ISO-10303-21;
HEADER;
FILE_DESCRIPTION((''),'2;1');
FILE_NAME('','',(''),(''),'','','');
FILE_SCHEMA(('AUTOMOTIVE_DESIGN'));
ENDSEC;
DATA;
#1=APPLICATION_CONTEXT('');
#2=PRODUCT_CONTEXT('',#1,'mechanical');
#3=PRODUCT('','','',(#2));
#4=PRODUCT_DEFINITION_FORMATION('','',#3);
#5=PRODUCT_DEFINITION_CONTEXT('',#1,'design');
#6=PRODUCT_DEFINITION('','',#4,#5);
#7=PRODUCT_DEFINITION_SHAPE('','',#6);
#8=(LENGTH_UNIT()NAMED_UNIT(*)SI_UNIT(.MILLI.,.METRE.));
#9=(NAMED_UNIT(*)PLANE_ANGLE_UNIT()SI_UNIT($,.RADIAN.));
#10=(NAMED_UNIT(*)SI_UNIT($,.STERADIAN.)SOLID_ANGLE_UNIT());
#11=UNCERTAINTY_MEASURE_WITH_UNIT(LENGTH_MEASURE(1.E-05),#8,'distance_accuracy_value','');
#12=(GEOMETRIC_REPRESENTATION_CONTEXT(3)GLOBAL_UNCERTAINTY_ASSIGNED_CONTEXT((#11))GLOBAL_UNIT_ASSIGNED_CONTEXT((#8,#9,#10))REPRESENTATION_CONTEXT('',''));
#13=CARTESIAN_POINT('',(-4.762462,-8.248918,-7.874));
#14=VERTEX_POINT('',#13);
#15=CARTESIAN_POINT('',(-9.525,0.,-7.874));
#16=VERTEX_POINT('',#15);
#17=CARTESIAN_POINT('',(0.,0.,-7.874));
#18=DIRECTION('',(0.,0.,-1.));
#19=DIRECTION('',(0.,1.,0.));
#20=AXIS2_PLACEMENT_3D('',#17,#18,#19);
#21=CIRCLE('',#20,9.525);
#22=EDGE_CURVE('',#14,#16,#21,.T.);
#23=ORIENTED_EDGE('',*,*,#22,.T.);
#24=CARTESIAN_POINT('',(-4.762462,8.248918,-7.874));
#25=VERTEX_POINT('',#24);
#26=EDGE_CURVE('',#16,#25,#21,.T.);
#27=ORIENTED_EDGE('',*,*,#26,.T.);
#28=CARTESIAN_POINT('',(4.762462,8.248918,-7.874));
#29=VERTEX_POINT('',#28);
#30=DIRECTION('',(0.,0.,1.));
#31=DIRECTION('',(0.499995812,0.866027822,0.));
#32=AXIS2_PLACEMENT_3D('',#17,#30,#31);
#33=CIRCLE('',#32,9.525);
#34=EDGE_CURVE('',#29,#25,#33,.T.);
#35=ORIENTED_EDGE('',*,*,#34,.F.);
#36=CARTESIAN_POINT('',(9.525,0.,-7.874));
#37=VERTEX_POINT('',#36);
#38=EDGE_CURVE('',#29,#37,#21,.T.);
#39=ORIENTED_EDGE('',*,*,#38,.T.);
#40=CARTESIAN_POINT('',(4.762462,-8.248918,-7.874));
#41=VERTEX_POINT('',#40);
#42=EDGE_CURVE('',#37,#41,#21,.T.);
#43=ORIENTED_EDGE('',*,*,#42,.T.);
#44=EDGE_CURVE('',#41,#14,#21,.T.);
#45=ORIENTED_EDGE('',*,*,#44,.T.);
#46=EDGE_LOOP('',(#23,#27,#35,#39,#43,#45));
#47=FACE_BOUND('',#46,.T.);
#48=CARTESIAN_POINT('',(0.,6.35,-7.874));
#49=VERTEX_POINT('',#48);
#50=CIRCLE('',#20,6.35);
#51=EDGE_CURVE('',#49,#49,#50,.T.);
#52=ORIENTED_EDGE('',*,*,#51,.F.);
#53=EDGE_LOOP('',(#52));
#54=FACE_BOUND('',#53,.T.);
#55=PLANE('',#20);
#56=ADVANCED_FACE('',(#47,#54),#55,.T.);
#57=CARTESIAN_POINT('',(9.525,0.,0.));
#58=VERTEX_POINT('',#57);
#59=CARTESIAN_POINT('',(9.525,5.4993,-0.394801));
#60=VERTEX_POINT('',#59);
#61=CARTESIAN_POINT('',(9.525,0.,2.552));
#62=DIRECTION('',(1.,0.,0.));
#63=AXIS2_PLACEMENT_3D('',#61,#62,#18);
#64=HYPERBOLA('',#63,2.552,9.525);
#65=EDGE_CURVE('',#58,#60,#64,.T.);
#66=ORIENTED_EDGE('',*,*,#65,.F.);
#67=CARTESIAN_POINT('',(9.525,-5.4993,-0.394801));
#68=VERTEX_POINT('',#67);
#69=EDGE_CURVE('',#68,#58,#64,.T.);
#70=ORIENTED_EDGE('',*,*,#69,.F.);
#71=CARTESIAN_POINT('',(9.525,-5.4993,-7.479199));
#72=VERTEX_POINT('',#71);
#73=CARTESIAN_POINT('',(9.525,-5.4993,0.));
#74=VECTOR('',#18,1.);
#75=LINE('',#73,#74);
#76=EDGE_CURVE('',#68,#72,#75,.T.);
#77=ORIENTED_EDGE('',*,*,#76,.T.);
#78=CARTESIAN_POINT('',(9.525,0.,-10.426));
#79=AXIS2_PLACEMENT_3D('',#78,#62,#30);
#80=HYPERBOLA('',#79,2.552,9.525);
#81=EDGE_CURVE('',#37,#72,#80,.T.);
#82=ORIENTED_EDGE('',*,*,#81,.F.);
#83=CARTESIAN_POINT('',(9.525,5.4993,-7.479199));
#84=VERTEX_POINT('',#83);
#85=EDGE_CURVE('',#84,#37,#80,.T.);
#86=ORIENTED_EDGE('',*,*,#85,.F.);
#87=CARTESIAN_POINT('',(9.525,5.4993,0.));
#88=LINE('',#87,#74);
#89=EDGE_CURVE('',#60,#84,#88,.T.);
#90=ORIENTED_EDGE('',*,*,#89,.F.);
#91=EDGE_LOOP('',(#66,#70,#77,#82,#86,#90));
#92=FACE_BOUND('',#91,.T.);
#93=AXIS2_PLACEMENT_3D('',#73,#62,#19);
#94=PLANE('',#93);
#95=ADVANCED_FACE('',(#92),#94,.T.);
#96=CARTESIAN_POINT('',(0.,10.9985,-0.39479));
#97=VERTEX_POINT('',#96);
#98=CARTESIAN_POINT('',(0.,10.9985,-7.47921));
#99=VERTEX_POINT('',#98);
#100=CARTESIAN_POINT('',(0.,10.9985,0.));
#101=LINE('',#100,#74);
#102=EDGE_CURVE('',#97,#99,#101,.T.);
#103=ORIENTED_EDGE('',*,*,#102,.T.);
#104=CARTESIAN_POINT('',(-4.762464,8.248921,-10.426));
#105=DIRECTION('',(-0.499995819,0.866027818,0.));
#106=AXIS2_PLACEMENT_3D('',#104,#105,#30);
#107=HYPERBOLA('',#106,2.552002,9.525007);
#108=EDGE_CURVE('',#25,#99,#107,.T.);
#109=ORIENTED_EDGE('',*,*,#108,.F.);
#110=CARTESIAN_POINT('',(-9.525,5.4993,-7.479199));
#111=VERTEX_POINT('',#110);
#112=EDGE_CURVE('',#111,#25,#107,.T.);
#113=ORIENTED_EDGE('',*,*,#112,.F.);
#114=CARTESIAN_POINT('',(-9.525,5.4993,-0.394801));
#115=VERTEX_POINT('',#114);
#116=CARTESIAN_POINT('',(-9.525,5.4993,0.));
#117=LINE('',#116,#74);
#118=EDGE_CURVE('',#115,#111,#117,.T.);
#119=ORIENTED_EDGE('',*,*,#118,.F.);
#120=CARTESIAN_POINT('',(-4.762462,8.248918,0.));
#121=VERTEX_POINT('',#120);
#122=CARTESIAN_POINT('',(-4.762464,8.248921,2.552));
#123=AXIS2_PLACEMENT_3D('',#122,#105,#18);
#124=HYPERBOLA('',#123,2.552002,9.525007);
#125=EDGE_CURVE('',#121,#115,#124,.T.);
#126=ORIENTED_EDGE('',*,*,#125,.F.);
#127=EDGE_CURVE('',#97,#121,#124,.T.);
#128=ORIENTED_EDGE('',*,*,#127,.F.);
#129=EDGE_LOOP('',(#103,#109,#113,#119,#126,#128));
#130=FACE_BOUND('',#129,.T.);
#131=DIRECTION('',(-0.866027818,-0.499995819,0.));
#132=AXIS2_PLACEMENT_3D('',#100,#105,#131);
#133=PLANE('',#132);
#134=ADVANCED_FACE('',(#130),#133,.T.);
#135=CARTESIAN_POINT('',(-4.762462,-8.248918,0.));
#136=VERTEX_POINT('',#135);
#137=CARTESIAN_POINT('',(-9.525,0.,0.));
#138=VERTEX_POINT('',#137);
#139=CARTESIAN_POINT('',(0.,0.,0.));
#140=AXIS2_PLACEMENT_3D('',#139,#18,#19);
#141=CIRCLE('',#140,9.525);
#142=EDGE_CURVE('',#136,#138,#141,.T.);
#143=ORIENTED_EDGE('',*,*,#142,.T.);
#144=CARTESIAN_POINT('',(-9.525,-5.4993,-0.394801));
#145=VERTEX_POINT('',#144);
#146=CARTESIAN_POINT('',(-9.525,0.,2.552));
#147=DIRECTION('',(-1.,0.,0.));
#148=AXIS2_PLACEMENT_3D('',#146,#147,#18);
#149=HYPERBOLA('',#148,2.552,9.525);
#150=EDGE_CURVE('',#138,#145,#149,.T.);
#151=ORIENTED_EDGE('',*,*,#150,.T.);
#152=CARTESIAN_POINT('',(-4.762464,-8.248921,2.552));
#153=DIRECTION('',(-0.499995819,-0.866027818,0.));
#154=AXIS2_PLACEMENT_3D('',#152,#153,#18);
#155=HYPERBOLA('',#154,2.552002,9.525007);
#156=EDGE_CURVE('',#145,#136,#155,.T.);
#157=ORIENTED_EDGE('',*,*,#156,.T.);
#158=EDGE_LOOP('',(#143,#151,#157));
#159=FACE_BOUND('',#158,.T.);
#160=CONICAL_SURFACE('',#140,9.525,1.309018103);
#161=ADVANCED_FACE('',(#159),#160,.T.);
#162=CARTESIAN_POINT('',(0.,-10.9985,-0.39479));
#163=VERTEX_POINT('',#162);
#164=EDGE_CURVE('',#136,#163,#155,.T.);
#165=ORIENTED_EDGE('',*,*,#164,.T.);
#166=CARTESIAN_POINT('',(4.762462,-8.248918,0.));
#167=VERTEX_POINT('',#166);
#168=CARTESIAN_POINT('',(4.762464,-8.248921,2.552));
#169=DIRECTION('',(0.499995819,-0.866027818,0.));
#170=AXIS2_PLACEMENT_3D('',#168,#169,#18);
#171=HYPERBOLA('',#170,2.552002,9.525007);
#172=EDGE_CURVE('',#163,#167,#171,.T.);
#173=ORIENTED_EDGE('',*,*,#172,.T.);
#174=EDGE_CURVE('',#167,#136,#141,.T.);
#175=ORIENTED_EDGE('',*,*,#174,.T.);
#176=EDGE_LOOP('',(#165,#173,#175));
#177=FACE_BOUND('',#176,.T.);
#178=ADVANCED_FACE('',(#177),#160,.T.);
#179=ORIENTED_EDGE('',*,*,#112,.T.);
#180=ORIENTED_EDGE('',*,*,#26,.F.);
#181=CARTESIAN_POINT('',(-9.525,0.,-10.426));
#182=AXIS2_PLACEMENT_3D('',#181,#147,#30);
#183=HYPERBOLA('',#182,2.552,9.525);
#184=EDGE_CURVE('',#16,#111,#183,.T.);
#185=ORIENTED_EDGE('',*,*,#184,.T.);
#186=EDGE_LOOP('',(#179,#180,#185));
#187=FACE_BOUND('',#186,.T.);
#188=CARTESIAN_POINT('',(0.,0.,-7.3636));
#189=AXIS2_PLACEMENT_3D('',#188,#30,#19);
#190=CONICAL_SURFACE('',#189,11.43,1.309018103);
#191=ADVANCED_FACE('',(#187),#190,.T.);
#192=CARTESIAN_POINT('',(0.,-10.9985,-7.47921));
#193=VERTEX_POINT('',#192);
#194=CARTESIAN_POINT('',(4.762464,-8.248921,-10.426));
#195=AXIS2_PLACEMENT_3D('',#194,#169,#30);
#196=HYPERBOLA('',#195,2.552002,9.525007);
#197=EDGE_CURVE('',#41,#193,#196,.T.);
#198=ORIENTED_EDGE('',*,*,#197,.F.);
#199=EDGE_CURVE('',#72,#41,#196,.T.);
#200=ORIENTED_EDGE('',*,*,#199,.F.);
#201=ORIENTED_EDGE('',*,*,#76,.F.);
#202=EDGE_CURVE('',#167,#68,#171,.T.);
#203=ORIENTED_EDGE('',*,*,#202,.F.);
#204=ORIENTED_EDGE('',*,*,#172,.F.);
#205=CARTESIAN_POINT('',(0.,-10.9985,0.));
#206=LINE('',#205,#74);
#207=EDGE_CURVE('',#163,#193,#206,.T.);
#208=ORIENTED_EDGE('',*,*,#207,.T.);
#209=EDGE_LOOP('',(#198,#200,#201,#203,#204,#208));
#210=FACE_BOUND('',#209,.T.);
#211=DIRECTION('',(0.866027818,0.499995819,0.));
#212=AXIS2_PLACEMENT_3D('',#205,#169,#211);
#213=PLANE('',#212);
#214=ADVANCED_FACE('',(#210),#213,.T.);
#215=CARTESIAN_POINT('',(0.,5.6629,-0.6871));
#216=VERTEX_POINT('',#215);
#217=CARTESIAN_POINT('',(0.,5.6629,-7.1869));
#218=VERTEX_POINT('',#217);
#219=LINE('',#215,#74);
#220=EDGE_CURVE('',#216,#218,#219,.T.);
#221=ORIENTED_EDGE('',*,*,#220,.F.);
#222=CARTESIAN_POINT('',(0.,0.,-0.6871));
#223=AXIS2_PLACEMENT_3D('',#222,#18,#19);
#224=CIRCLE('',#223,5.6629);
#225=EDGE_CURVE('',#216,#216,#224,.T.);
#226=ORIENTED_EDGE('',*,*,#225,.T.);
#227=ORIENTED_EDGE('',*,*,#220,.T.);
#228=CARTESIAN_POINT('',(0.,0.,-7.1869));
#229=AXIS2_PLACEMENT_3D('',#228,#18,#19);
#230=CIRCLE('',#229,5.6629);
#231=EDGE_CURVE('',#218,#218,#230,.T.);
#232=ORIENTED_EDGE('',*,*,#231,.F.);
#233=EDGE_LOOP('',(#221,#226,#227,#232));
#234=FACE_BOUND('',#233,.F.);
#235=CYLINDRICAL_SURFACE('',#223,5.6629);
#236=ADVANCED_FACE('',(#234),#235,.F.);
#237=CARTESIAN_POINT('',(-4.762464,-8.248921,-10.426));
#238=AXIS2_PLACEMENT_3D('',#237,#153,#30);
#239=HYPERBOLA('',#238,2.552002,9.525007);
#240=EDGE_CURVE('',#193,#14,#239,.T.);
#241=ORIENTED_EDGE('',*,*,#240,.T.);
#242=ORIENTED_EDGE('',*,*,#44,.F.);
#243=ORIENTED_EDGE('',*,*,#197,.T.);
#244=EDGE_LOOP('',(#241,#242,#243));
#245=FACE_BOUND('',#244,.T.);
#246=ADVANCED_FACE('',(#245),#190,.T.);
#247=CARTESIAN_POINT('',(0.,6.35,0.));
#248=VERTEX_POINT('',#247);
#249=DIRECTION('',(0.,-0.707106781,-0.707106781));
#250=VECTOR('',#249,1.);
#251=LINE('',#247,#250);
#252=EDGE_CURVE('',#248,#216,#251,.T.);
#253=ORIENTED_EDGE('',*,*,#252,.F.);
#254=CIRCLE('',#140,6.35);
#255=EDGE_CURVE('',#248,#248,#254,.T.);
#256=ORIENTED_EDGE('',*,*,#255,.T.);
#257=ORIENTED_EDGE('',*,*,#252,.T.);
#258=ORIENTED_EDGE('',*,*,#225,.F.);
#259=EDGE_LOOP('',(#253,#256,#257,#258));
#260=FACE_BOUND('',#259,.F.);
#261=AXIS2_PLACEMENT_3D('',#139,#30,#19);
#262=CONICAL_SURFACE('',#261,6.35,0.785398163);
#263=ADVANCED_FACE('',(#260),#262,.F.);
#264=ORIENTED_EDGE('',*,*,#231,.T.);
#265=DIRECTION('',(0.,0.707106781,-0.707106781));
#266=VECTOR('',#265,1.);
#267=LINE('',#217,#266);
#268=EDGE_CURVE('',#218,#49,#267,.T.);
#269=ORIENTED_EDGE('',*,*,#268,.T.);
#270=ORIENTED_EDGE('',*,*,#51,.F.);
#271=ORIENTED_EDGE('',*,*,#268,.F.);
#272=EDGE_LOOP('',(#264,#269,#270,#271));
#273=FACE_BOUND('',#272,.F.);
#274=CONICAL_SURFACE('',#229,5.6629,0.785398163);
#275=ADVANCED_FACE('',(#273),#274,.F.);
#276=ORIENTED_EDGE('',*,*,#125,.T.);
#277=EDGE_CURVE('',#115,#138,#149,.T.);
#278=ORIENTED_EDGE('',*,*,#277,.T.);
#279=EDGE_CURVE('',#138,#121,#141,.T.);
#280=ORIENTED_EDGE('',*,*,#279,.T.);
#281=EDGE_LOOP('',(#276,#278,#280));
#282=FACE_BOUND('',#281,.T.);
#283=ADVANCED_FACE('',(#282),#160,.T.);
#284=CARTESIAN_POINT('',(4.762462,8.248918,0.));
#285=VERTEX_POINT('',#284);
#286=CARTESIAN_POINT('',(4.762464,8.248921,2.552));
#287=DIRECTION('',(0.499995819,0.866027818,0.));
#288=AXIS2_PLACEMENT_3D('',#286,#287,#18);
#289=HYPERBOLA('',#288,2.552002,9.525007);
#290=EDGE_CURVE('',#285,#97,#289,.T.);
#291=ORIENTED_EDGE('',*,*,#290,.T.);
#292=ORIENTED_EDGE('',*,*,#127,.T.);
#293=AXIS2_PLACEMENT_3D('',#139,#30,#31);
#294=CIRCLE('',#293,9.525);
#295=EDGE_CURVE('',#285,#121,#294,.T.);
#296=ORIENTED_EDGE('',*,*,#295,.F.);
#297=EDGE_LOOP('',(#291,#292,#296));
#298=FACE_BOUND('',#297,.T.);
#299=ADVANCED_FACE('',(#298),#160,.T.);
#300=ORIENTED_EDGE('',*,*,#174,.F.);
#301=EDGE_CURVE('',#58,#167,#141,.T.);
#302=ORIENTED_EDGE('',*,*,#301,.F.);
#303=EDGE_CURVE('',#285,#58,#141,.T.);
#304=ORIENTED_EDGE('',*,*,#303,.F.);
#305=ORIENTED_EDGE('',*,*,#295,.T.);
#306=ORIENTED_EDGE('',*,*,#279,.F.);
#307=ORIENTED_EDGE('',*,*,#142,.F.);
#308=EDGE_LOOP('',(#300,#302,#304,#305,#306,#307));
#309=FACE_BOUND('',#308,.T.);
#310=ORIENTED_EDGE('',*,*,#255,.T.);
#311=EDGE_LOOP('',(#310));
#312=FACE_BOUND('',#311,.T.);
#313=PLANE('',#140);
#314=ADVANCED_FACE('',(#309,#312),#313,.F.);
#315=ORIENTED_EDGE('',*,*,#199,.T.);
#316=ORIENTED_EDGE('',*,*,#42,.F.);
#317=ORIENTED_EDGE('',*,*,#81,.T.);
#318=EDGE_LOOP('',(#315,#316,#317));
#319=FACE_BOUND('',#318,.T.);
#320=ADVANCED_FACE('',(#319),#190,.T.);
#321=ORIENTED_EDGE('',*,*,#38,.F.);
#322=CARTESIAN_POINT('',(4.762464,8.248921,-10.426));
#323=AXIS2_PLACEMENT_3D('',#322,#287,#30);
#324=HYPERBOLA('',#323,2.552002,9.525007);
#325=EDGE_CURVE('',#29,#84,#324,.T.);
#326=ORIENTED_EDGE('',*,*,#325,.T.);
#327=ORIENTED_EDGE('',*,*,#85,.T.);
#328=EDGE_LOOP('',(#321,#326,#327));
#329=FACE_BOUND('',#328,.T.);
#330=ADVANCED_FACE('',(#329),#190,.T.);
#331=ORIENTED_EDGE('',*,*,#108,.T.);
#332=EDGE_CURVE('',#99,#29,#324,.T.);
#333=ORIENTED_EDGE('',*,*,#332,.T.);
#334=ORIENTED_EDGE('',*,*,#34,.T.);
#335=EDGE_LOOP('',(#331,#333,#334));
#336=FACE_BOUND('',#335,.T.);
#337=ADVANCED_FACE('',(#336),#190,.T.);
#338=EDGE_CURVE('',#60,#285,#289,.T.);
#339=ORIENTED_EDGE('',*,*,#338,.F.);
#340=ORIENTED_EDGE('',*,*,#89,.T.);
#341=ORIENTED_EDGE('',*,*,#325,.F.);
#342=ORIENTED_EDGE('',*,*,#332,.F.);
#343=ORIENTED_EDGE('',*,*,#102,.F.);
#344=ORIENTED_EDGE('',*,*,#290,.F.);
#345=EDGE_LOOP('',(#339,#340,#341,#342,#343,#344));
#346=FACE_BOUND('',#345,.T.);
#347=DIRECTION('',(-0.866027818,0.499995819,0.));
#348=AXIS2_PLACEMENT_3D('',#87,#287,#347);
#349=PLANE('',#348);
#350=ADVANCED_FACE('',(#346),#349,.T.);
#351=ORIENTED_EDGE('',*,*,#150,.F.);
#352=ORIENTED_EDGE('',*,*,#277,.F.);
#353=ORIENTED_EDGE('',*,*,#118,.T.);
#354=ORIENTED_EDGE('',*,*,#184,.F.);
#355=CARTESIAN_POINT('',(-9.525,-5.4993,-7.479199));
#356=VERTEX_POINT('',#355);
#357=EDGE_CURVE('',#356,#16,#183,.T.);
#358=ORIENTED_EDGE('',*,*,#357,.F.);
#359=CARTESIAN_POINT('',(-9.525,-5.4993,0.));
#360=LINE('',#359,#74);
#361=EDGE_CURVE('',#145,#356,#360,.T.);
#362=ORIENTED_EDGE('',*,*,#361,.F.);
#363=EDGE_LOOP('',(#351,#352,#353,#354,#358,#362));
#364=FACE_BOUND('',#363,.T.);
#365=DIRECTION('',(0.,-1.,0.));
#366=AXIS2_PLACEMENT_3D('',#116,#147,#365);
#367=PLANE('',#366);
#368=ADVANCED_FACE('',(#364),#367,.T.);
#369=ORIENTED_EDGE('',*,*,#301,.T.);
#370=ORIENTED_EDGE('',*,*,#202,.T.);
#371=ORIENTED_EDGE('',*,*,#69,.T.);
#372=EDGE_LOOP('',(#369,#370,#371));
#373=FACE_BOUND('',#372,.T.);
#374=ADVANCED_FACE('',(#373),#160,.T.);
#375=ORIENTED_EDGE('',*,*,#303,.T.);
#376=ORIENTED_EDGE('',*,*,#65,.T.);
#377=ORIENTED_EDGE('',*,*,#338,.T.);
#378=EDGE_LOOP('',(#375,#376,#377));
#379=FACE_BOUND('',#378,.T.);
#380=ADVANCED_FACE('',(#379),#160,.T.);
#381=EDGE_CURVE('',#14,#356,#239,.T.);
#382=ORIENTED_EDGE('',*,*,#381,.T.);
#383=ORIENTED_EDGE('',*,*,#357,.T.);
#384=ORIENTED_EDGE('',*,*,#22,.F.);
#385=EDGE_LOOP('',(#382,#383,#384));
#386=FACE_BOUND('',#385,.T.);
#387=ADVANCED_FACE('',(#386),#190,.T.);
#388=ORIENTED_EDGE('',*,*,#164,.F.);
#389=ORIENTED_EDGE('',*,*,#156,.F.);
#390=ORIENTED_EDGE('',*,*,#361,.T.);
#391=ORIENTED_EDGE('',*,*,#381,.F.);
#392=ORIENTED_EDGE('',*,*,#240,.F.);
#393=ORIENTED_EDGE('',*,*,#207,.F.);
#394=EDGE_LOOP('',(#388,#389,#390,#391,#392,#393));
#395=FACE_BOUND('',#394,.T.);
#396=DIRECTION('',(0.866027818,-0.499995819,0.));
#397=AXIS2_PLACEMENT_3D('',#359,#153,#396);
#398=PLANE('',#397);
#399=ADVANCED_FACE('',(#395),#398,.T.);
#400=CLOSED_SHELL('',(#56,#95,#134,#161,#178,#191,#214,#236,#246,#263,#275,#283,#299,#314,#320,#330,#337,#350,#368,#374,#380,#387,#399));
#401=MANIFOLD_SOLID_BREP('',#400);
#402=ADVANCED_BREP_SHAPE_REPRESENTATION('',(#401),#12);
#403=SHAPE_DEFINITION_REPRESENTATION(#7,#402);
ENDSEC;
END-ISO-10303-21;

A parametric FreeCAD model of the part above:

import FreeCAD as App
import Part
import Sketcher

V = App.Vector
Q = App.Units.Quantity

doc = App.newDocument("Part")
body = doc.addObject("PartDesign::Body", "Body")

# Sketch on YZ plane
sketch1 = body.newObject("Sketcher::SketchObject", "Sketch")
sketch1.AttachmentSupport = (doc.getObject("YZ_Plane"), [""])
sketch1.MapMode = "FlatFace"
sketch1.addGeometry([
    Part.LineSegment(V(0, 0, 0), V(0, -7.874, 0)),  # 0
    Part.LineSegment(V(0, -7.874, 0), V(9.525, -7.874, 0)),  # 1
    Part.LineSegment(V(9.525, -7.874, 0), V(11.43, -7.3636, 0)),  # 2
    Part.LineSegment(V(11.43, -7.3636, 0), V(11.43, -0.5104, 0)),  # 3
    Part.LineSegment(V(11.43, -0.5104, 0), V(9.525, 0, 0)),  # 4
    Part.LineSegment(V(9.525, 0, 0), V(0, 0, 0)),  # 5
], False)
sketch1.addConstraint([
    Sketcher.Constraint("Coincident", 0, 2, 1, 1),
    Sketcher.Constraint("Coincident", 1, 2, 2, 1),
    Sketcher.Constraint("Coincident", 2, 2, 3, 1),
    Sketcher.Constraint("Coincident", 3, 2, 4, 1),
    Sketcher.Constraint("Coincident", 4, 2, 5, 1),
    Sketcher.Constraint("Coincident", 5, 2, 0, 1),
    Sketcher.Constraint("Vertical", 0),
    Sketcher.Constraint("Horizontal", 1),
    Sketcher.Constraint("Vertical", 3),
    Sketcher.Constraint("Horizontal", 5),
    Sketcher.Constraint("Coincident", 5, 2, -1, 1),
    Sketcher.Constraint("Vertical", 1, 2, 4, 2),
    Sketcher.Constraint("Equal", 2, 4),
    Sketcher.Constraint("DistanceY", 0, 2, 0, 1, Q("0.31 in")),
    Sketcher.Constraint("DistanceX", 1, 1, 1, 2, Q("0.375 in")),
    Sketcher.Constraint("DistanceX", -1, 1, 2, 2, Q("0.45 in")),
    Sketcher.Constraint("DistanceY", 3, 1, 3, 2, Q("0.2698 in")),
])
revolution = body.newObject("PartDesign::Revolution", "Revolution")
revolution.Profile = sketch1
revolution.ReferenceAxis = (sketch1, ["V_Axis"])
revolution.Angle = 360

# Sketch on XY plane
sketch2 = body.newObject("Sketcher::SketchObject", "Sketch001")
sketch2.AttachmentSupport = (doc.getObject("XY_Plane"), [""])
sketch2.MapMode = "FlatFace"
sketch2.addGeometry([
    Part.LineSegment(V(19.05, 19.05, 0), V(-19.05, 19.05, 0)),  # 0
    Part.LineSegment(V(-19.05, 19.05, 0), V(-19.05, -19.05, 0)),  # 1
    Part.LineSegment(V(-19.05, -19.05, 0), V(19.05, -19.05, 0)),  # 2
    Part.LineSegment(V(19.05, -19.05, 0), V(19.05, 19.05, 0)),  # 3
    Part.LineSegment(V(-9.525, -5.4993, 0), V(-9.525, 5.4993, 0)),  # 4
    Part.LineSegment(V(-9.525, 5.4993, 0), V(0, 10.9985, 0)),  # 5
    Part.LineSegment(V(0, 10.9985, 0), V(9.525, 5.4993, 0)),  # 6
    Part.LineSegment(V(9.525, 5.4993, 0), V(9.525, -5.4993, 0)),  # 7
    Part.LineSegment(V(9.525, -5.4993, 0), V(0, -10.9985, 0)),  # 8
    Part.LineSegment(V(0, -10.9985, 0), V(-9.525, -5.4993, 0)),  # 9
], False)
sketch2.addConstraint([
    Sketcher.Constraint("Coincident", 0, 2, 1, 1),
    Sketcher.Constraint("Coincident", 1, 2, 2, 1),
    Sketcher.Constraint("Coincident", 2, 2, 3, 1),
    Sketcher.Constraint("Coincident", 3, 2, 0, 1),
    Sketcher.Constraint("Coincident", 4, 2, 5, 1),
    Sketcher.Constraint("Coincident", 5, 2, 6, 1),
    Sketcher.Constraint("Coincident", 6, 2, 7, 1),
    Sketcher.Constraint("Coincident", 7, 2, 8, 1),
    Sketcher.Constraint("Coincident", 8, 2, 9, 1),
    Sketcher.Constraint("Coincident", 9, 2, 4, 1),
    Sketcher.Constraint("Horizontal", 0),
    Sketcher.Constraint("Vertical", 1),
    Sketcher.Constraint("Horizontal", 2),
    Sketcher.Constraint("Vertical", 3),
    Sketcher.Constraint("Vertical", 4),
    Sketcher.Constraint("Vertical", 7),
    Sketcher.Constraint("Symmetric", 0, 2, 2, 2, -1, 1),
    Sketcher.Constraint("Symmetric", 4, 2, 7, 2, -1, 1),
    Sketcher.Constraint("Symmetric", 5, 2, 8, 2, -1, 1),
    Sketcher.Constraint("PointOnObject", 5, 2, -2),
    Sketcher.Constraint("Parallel", 6, 9),
    Sketcher.Constraint("Horizontal", 4, 2, 6, 2),
    Sketcher.Constraint("Equal", 2, 1),
    Sketcher.Constraint("DistanceX", 0, 2, 0, 1, Q("1.5 in")),
    Sketcher.Constraint("Angle", 5, Q("29.9997 deg")),
    Sketcher.Constraint("DistanceX", 4, 2, 6, 2, Q("0.75 in")),
    Sketcher.Constraint("DistanceY", -1, 1, 5, 2, Q("0.433 in")),
])
pocket1 = body.newObject("PartDesign::Pocket", "Pocket")
pocket1.Profile = sketch2
pocket1.Length = Q("0.31 in")

# Sketch on YZ plane
sketch3 = body.newObject("Sketcher::SketchObject", "Sketch002")
sketch3.AttachmentSupport = (doc.getObject("YZ_Plane"), [""])
sketch3.MapMode = "FlatFace"
sketch3.addGeometry([
    Part.LineSegment(V(0, 0, 0), V(0, -7.874, 0)),  # 0
    Part.LineSegment(V(0, -7.874, 0), V(6.35, -7.874, 0)),  # 1
    Part.LineSegment(V(6.35, -7.874, 0), V(5.6629, -7.1869, 0)),  # 2
    Part.LineSegment(V(5.6629, -7.1869, 0), V(5.6629, -0.6871, 0)),  # 3
    Part.LineSegment(V(5.6629, -0.6871, 0), V(6.35, 0, 0)),  # 4
    Part.LineSegment(V(6.35, 0, 0), V(0, 0, 0)),  # 5
], False)
sketch3.addConstraint([
    Sketcher.Constraint("Coincident", 0, 2, 1, 1),
    Sketcher.Constraint("Coincident", 1, 2, 2, 1),
    Sketcher.Constraint("Coincident", 2, 2, 3, 1),
    Sketcher.Constraint("Coincident", 3, 2, 4, 1),
    Sketcher.Constraint("Coincident", 4, 2, 5, 1),
    Sketcher.Constraint("Coincident", 5, 2, 0, 1),
    Sketcher.Constraint("Vertical", 0),
    Sketcher.Constraint("Horizontal", 1),
    Sketcher.Constraint("Vertical", 3),
    Sketcher.Constraint("Horizontal", 5),
    Sketcher.Constraint("Coincident", 5, 2, -1, 1),
    Sketcher.Constraint("Perpendicular", 2, 4),
    Sketcher.Constraint("Vertical", 1, 2, 4, 2),
    Sketcher.Constraint("Equal", 2, 4),
    Sketcher.Constraint("DistanceX", 1, 1, 1, 2, Q("0.25 in")),
    Sketcher.Constraint("DistanceY", 0, 2, 0, 1, Q("0.31 in")),
    Sketcher.Constraint("DistanceY", 3, 1, 3, 2, Q("0.2559 in")),
])
groove = body.newObject("PartDesign::Groove", "Groove")
groove.Profile = sketch3
groove.ReferenceAxis = (sketch3, ["V_Axis"])
groove.Angle = 360

doc.recompute()
